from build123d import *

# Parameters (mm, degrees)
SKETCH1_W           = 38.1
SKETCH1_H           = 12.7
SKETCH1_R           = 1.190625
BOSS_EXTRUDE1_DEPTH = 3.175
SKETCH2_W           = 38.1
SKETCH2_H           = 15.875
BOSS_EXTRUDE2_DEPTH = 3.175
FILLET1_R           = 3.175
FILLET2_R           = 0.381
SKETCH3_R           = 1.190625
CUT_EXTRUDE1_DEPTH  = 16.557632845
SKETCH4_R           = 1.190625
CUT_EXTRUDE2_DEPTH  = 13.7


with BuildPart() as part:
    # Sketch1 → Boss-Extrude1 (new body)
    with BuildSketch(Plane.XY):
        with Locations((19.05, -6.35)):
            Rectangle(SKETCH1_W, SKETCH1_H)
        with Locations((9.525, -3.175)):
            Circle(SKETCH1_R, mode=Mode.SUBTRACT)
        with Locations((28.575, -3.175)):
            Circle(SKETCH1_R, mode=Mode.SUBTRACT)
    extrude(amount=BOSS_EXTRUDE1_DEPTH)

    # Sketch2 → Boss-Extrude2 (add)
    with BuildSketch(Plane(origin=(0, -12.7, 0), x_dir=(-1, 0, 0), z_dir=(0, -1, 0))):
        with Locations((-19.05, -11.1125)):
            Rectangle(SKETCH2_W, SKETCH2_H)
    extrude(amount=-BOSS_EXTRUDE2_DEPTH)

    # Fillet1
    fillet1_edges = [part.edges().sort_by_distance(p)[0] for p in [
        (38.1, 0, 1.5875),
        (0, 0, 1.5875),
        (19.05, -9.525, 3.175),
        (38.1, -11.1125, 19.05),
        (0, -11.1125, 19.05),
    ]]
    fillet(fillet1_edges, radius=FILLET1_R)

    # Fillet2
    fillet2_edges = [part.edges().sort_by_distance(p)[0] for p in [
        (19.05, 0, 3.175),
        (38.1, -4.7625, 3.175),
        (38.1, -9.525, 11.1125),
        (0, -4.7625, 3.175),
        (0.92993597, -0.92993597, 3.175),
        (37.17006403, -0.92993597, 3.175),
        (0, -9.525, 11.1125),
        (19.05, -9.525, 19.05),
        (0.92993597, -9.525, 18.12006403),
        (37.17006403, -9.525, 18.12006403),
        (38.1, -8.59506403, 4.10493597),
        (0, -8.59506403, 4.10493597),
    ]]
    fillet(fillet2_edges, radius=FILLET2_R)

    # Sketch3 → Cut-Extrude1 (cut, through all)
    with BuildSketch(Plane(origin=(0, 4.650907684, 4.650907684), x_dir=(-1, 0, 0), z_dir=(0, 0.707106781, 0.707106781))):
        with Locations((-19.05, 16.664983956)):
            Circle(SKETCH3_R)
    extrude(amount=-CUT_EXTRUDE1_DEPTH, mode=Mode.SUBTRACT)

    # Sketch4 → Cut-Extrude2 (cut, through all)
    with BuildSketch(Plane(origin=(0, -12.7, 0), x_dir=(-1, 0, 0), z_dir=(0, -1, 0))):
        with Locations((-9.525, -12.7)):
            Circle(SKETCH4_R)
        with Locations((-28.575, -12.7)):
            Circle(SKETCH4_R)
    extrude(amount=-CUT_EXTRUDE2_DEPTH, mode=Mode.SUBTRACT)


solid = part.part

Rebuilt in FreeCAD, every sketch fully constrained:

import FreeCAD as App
import Part
import Sketcher
from FreeCAD import Vector
Q = App.Units.Quantity


def edges_at(feature, points):
    """Names of the edges that pass closest to the given points."""
    edges = feature.Shape.Edges
    near = lambda p: min(range(len(edges)), key=lambda i: edges[i].distToShape(Part.Vertex(*p))[0])
    return sorted({f"Edge{near(p) + 1}" for p in points})

doc = App.newDocument("Part")
body = doc.addObject("PartDesign::Body", "Body")

# Sketch on XY plane
sketch1 = body.newObject("Sketcher::SketchObject", "Sketch")
sketch1.AttachmentSupport = (doc.getObject("XY_Plane"), [""])
sketch1.MapMode = "FlatFace"
sketch1.addGeometry([
    Part.LineSegment(Vector(0, 0, 0), Vector(0, -12.7, 0)),  # 0
    Part.LineSegment(Vector(0, -12.7, 0), Vector(38.1, -12.7, 0)),  # 1
    Part.LineSegment(Vector(38.1, -12.7, 0), Vector(38.1, 0, 0)),  # 2
    Part.LineSegment(Vector(38.1, 0, 0), Vector(0, 0, 0)),  # 3
    Part.Circle(Vector(9.5, -3.2, 0), Vector(0, 0, 1), 1.2),  # 4
    Part.Circle(Vector(28.6, -3.2, 0), Vector(0, 0, 1), 1.2),  # 5
], False)
sketch1.addConstraint([
    Sketcher.Constraint("Coincident", 0, 2, 1, 1),
    Sketcher.Constraint("Coincident", 1, 2, 2, 1),
    Sketcher.Constraint("Coincident", 2, 2, 3, 1),
    Sketcher.Constraint("Coincident", 3, 2, 0, 1),
    Sketcher.Constraint("Vertical", 0),
    Sketcher.Constraint("Horizontal", 1),
    Sketcher.Constraint("Vertical", 2),
    Sketcher.Constraint("Horizontal", 3),
    Sketcher.Constraint("Coincident", 3, 2, -1, 1),
    Sketcher.Constraint("Equal", 4, 5),
    Sketcher.Constraint("Horizontal", 4, 3, 5, 3),
    Sketcher.Constraint("Diameter", 4, Q("0.09375 in")),
    Sketcher.Constraint("DistanceX", 1, 1, 1, 2, Q("1.5 in")),
    Sketcher.Constraint("DistanceY", 0, 2, 0, 1, Q("0.5 in")),
    Sketcher.Constraint("DistanceX", 4, 3, 5, 3, Q("0.75 in")),
    Sketcher.Constraint("DistanceX", -1, 1, 4, 3, Q("0.375 in")),
    Sketcher.Constraint("DistanceY", 4, 3, -1, 1, Q("0.125 in")),
])
pad1 = body.newObject("PartDesign::Pad", "Pad")
pad1.Profile = sketch1
pad1.Length = Q("0.125 in")

# Sketch on XZ plane
sketch2 = body.newObject("Sketcher::SketchObject", "Sketch001")
sketch2.AttachmentSupport = (doc.getObject("XZ_Plane"), [""])
sketch2.MapMode = "FlatFace"
sketch2.AttachmentOffset = App.Placement(Vector(0, 0, 0.5 * 25.4), App.Rotation())
sketch2.addGeometry([
    Part.LineSegment(Vector(38, 3, 0), Vector(38, 19, 0)),
    Part.LineSegment(Vector(38, 19, 0), Vector(0, 19, 0)),
    Part.LineSegment(Vector(0, 19, 0), Vector(0, 3, 0)),
    Part.LineSegment(Vector(0, 3, 0), Vector(38, 3, 0)),
], False)
sketch2.addConstraint([
    Sketcher.Constraint("Coincident", 0, 2, 1, 1),
    Sketcher.Constraint("Coincident", 1, 2, 2, 1),
    Sketcher.Constraint("Coincident", 2, 2, 3, 1),
    Sketcher.Constraint("Coincident", 3, 2, 0, 1),
    Sketcher.Constraint("Vertical", 0),
    Sketcher.Constraint("Horizontal", 1),
    Sketcher.Constraint("Vertical", 2),
    Sketcher.Constraint("Horizontal", 3),
    Sketcher.Constraint("PointOnObject", 1, 2, -2),
    Sketcher.Constraint("DistanceX", 1, 2, 1, 1, Q("1.5 in")),
    Sketcher.Constraint("DistanceY", 0, 1, 0, 2, Q("0.625 in")),
    Sketcher.Constraint("DistanceY", -1, 1, 0, 2, Q("0.75 in")),
])
pad2 = body.newObject("PartDesign::Pad", "Pad001")
pad2.Profile = sketch2
pad2.Length = Q("0.125 in")
pad2.Reversed = True
doc.recompute()

fillet = body.newObject("PartDesign::Fillet", "Fillet")
fillet.Base = (pad2, edges_at(pad2, [
    (38.1, 0, 1.587),
    (0, 0, 1.587),
    (19.05, -9.525, 3.175),
    (38.1, -11.113, 19.05),
    (0, -11.113, 19.05),
]))
fillet.Radius = Q("0.125 in")
doc.recompute()

fillet2 = body.newObject("PartDesign::Fillet", "Fillet001")
fillet2.Base = (fillet, edges_at(fillet, [
    (19.05, 0, 3.175),
    (38.1, -4.763, 3.175),
    (38.1, -9.525, 11.113),
    (0, -4.763, 3.175),
    (0.93, -0.93, 3.175),
    (37.17, -0.93, 3.175),
    (0, -9.525, 11.113),
    (19.05, -9.525, 19.05),
    (0.93, -9.525, 18.12),
    (37.17, -9.525, 18.12),
    (38.1, -8.595, 4.105),
    (0, -8.595, 4.105),
]))
fillet2.Radius = Q("0.015 in")

# Sketch on an angled plane
sketch3 = body.newObject("Sketcher::SketchObject", "Sketch002")
sketch3.Placement = App.Placement(Vector(0, 4.650908, 4.650908), App.Rotation(Vector(-1, 0, 0), Vector(0, -0.707106781, 0.707106781), Vector(0, 0.707106781, 0.707106781), "ZXY"))
sketch3.addGeometry(Part.Circle(Vector(-19.1, 16.7, 0), Vector(0, 0, 1), 1.2), False)
sketch3.addConstraint([
    Sketcher.Constraint("Diameter", 0, Q("0.09375 in")),
    Sketcher.Constraint("DistanceX", 0, 3, -1, 1, Q("0.75 in")),
    Sketcher.Constraint("DistanceY", -1, 1, 0, 3, 16.664984),
])
pocket1 = body.newObject("PartDesign::Pocket", "Pocket")
pocket1.Profile = sketch3
pocket1.Type = "ThroughAll"

# Sketch on XZ plane
sketch4 = body.newObject("Sketcher::SketchObject", "Sketch003")
sketch4.AttachmentSupport = (doc.getObject("XZ_Plane"), [""])
sketch4.MapMode = "FlatFace"
sketch4.AttachmentOffset = App.Placement(Vector(0, 0, 0.5 * 25.4), App.Rotation())
sketch4.addGeometry([
    Part.Circle(Vector(9.5, 12.7, 0), Vector(0, 0, 1), 1.2),
    Part.Circle(Vector(28.6, 12.7, 0), Vector(0, 0, 1), 1.2),
], False)
sketch4.addConstraint([
    Sketcher.Constraint("Equal", 0, 1),
    Sketcher.Constraint("Horizontal", 0, 3, 1, 3),
    Sketcher.Constraint("Diameter", 0, Q("0.09375 in")),
    Sketcher.Constraint("DistanceY", -1, 1, 0, 3, Q("0.5 in")),
    Sketcher.Constraint("DistanceX", 0, 3, 1, 3, Q("0.75 in")),
    Sketcher.Constraint("DistanceX", -1, 1, 0, 3, Q("0.375 in")),
])
pocket2 = body.newObject("PartDesign::Pocket", "Pocket001")
pocket2.Profile = sketch4
pocket2.Type = "ThroughAll"

doc.recompute()
